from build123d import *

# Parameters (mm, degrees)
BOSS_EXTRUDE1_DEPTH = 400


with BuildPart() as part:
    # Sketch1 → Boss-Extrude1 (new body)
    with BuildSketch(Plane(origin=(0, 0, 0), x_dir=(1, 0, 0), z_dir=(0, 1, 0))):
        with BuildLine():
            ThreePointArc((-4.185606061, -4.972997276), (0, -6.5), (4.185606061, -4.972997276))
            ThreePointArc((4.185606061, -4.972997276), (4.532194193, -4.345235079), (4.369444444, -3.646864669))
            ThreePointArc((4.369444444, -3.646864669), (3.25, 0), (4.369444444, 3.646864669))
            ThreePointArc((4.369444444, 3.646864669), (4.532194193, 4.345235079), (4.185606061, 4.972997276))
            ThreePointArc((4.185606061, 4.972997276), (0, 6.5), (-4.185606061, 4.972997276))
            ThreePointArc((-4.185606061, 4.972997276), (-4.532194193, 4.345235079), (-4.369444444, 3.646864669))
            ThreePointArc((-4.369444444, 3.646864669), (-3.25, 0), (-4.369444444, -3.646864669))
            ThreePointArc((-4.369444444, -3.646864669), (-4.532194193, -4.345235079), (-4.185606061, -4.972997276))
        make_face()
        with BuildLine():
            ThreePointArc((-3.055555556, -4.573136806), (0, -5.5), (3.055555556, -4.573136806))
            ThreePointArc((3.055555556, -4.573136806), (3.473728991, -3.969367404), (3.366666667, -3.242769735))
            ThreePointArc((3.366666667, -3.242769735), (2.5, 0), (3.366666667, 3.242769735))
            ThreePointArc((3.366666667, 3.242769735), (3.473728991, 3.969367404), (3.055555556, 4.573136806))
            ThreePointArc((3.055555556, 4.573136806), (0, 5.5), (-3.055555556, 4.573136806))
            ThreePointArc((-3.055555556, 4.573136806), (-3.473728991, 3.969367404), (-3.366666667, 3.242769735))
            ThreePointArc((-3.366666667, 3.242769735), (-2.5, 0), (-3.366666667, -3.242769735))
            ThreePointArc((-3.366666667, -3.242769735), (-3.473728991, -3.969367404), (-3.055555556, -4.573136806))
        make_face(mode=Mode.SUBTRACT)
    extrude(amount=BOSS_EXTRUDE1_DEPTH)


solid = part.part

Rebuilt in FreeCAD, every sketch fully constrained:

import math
import FreeCAD as App
import Part
import Sketcher

V = App.Vector
Q = App.Units.Quantity

doc = App.newDocument("Part")
body = doc.addObject("PartDesign::Body", "Body")

# Sketch on XZ plane
sketch1 = body.newObject("Sketcher::SketchObject", "Sketch")
sketch1.AttachmentSupport = (doc.getObject("XZ_Plane"), [""])
sketch1.MapMode = "FlatFace"
sketch1.addGeometry(Part.ArcOfCircle(Part.Circle(V(0, 0, 0), V(0, 0, 1), 6.5), math.radians(50), math.radians(130)), False)
sketch1.addGeometry(Part.ArcOfCircle(Part.Circle(V(3.5, 4.2, 0), V(0, 0, 1), 1), math.radians(-34), math.radians(50)), False)
sketch1.addGeometry(Part.ArcOfCircle(Part.Circle(V(9.8, 0, 0), V(0, 0, 1), 6.5), math.radians(146), math.radians(214)), False)
sketch1.addGeometry(Part.ArcOfCircle(Part.Circle(V(3.5, -4.2, 0), V(0, 0, 1), 1), math.radians(-50), math.radians(34)), False)
sketch1.addGeometry(Part.ArcOfCircle(Part.Circle(V(0, 0, 0), V(0, 0, 1), 6.5), math.radians(-130), math.radians(-50)), False)
sketch1.addGeometry(Part.ArcOfCircle(Part.Circle(V(-3.5, -4.2, 0), V(0, 0, 1), 1), math.radians(146), math.radians(230)), False)
sketch1.addGeometry(Part.ArcOfCircle(Part.Circle(V(-9.8, 0, 0), V(0, 0, 1), 6.5), math.radians(-34), math.radians(34)), False)
sketch1.addGeometry(Part.ArcOfCircle(Part.Circle(V(-3.5, 4.2, 0), V(0, 0, 1), 1), math.radians(130), math.radians(214)), False)
sketch1.addGeometry(Part.ArcOfCircle(Part.Circle(V(0, 0, 0), V(0, 0, 1), 5.5), math.radians(56), math.radians(124)), False)
sketch1.addGeometry(Part.ArcOfCircle(Part.Circle(V(-2.5, 3.7, 0), V(0, 0, 1), 1), math.radians(124), math.radians(210)), False)
sketch1.addGeometry(Part.ArcOfCircle(Part.Circle(V(-9, 0, 0), V(0, 0, 1), 6.5), math.radians(-30), math.radians(30)), False)
sketch1.addGeometry(Part.ArcOfCircle(Part.Circle(V(-2.5, -3.7, 0), V(0, 0, 1), 1), math.radians(150), math.radians(236)), False)
sketch1.addGeometry(Part.ArcOfCircle(Part.Circle(V(0, 0, 0), V(0, 0, 1), 5.5), math.radians(-124), math.radians(-56)), False)
sketch1.addGeometry(Part.ArcOfCircle(Part.Circle(V(2.5, -3.7, 0), V(0, 0, 1), 1), math.radians(-56), math.radians(30)), False)
sketch1.addGeometry(Part.ArcOfCircle(Part.Circle(V(9, 0, 0), V(0, 0, 1), 6.5), math.radians(150), math.radians(210)), False)
sketch1.addGeometry(Part.ArcOfCircle(Part.Circle(V(2.5, 3.7, 0), V(0, 0, 1), 1), math.radians(-30), math.radians(56)), False)
sketch1.addConstraint(Sketcher.Constraint("Tangent", 0, 1, 1, 2))
sketch1.addConstraint(Sketcher.Constraint("Tangent", 1, 1, 2, 1))
sketch1.addConstraint(Sketcher.Constraint("Tangent", 2, 2, 3, 2))
sketch1.addConstraint(Sketcher.Constraint("Tangent", 3, 1, 4, 2))
sketch1.addConstraint(Sketcher.Constraint("Tangent", 4, 1, 5, 2))
sketch1.addConstraint(Sketcher.Constraint("Tangent", 5, 1, 6, 1))
sketch1.addConstraint(Sketcher.Constraint("Tangent", 6, 2, 7, 2))
sketch1.addConstraint(Sketcher.Constraint("Tangent", 7, 1, 0, 2))
sketch1.addConstraint(Sketcher.Constraint("Tangent", 8, 2, 9, 1))
sketch1.addConstraint(Sketcher.Constraint("Tangent", 9, 2, 10, 2))
sketch1.addConstraint(Sketcher.Constraint("Tangent", 10, 1, 11, 1))
sketch1.addConstraint(Sketcher.Constraint("Tangent", 11, 2, 12, 1))
sketch1.addConstraint(Sketcher.Constraint("Tangent", 12, 2, 13, 1))
sketch1.addConstraint(Sketcher.Constraint("Tangent", 13, 2, 14, 2))
sketch1.addConstraint(Sketcher.Constraint("Tangent", 14, 1, 15, 1))
sketch1.addConstraint(Sketcher.Constraint("Tangent", 15, 2, 8, 1))
sketch1.addConstraint(Sketcher.Constraint("Coincident", 0, 3, -1, 1))
sketch1.addConstraint(Sketcher.Constraint("Coincident", 4, 3, -1, 1))
sketch1.addConstraint(Sketcher.Constraint("Coincident", 8, 3, -1, 1))
sketch1.addConstraint(Sketcher.Constraint("Coincident", 12, 3, -1, 1))
sketch1.addConstraint(Sketcher.Constraint("Equal", 0, 2))
sketch1.addConstraint(Sketcher.Constraint("Equal", 1, 3))
sketch1.addConstraint(Sketcher.Constraint("Equal", 2, 4))
sketch1.addConstraint(Sketcher.Constraint("Equal", 3, 5))
sketch1.addConstraint(Sketcher.Constraint("Equal", 4, 6))
sketch1.addConstraint(Sketcher.Constraint("Equal", 5, 7))
sketch1.addConstraint(Sketcher.Constraint("Equal", 7, 9))
sketch1.addConstraint(Sketcher.Constraint("Equal", 6, 10))
sketch1.addConstraint(Sketcher.Constraint("Equal", 9, 11))
sketch1.addConstraint(Sketcher.Constraint("Equal", 8, 12))
sketch1.addConstraint(Sketcher.Constraint("Equal", 11, 13))
sketch1.addConstraint(Sketcher.Constraint("Equal", 10, 14))
sketch1.addConstraint(Sketcher.Constraint("Equal", 13, 15))
sketch1.addConstraint(Sketcher.Constraint("Symmetric", 2, 3, 6, 3, -1, 1))
sketch1.addConstraint(Sketcher.Constraint("Symmetric", 10, 3, 14, 3, -1, 1))
sketch1.addConstraint(Sketcher.Constraint("PointOnObject", 2, 3, -1))
sketch1.addConstraint(Sketcher.Constraint("PointOnObject", 10, 3, -1))
sketch1.addConstraint(Sketcher.Constraint("Radius", 1, Q("1 mm")))
sketch1.addConstraint(Sketcher.Constraint("Radius", 0, Q("6.5 mm")))
sketch1.addConstraint(Sketcher.Constraint("Radius", 8, Q("5.5 mm")))
sketch1.addConstraint(Sketcher.Constraint("DistanceX", 10, 3, -1, 1, Q("9 mm")))
sketch1.addConstraint(Sketcher.Constraint("DistanceX", -1, 1, 2, 3, Q("9.75 mm")))
pad1 = body.newObject("PartDesign::Pad", "Pad")
pad1.Profile = sketch1
pad1.Length = 400
pad1.Reversed = True

doc.recompute()
